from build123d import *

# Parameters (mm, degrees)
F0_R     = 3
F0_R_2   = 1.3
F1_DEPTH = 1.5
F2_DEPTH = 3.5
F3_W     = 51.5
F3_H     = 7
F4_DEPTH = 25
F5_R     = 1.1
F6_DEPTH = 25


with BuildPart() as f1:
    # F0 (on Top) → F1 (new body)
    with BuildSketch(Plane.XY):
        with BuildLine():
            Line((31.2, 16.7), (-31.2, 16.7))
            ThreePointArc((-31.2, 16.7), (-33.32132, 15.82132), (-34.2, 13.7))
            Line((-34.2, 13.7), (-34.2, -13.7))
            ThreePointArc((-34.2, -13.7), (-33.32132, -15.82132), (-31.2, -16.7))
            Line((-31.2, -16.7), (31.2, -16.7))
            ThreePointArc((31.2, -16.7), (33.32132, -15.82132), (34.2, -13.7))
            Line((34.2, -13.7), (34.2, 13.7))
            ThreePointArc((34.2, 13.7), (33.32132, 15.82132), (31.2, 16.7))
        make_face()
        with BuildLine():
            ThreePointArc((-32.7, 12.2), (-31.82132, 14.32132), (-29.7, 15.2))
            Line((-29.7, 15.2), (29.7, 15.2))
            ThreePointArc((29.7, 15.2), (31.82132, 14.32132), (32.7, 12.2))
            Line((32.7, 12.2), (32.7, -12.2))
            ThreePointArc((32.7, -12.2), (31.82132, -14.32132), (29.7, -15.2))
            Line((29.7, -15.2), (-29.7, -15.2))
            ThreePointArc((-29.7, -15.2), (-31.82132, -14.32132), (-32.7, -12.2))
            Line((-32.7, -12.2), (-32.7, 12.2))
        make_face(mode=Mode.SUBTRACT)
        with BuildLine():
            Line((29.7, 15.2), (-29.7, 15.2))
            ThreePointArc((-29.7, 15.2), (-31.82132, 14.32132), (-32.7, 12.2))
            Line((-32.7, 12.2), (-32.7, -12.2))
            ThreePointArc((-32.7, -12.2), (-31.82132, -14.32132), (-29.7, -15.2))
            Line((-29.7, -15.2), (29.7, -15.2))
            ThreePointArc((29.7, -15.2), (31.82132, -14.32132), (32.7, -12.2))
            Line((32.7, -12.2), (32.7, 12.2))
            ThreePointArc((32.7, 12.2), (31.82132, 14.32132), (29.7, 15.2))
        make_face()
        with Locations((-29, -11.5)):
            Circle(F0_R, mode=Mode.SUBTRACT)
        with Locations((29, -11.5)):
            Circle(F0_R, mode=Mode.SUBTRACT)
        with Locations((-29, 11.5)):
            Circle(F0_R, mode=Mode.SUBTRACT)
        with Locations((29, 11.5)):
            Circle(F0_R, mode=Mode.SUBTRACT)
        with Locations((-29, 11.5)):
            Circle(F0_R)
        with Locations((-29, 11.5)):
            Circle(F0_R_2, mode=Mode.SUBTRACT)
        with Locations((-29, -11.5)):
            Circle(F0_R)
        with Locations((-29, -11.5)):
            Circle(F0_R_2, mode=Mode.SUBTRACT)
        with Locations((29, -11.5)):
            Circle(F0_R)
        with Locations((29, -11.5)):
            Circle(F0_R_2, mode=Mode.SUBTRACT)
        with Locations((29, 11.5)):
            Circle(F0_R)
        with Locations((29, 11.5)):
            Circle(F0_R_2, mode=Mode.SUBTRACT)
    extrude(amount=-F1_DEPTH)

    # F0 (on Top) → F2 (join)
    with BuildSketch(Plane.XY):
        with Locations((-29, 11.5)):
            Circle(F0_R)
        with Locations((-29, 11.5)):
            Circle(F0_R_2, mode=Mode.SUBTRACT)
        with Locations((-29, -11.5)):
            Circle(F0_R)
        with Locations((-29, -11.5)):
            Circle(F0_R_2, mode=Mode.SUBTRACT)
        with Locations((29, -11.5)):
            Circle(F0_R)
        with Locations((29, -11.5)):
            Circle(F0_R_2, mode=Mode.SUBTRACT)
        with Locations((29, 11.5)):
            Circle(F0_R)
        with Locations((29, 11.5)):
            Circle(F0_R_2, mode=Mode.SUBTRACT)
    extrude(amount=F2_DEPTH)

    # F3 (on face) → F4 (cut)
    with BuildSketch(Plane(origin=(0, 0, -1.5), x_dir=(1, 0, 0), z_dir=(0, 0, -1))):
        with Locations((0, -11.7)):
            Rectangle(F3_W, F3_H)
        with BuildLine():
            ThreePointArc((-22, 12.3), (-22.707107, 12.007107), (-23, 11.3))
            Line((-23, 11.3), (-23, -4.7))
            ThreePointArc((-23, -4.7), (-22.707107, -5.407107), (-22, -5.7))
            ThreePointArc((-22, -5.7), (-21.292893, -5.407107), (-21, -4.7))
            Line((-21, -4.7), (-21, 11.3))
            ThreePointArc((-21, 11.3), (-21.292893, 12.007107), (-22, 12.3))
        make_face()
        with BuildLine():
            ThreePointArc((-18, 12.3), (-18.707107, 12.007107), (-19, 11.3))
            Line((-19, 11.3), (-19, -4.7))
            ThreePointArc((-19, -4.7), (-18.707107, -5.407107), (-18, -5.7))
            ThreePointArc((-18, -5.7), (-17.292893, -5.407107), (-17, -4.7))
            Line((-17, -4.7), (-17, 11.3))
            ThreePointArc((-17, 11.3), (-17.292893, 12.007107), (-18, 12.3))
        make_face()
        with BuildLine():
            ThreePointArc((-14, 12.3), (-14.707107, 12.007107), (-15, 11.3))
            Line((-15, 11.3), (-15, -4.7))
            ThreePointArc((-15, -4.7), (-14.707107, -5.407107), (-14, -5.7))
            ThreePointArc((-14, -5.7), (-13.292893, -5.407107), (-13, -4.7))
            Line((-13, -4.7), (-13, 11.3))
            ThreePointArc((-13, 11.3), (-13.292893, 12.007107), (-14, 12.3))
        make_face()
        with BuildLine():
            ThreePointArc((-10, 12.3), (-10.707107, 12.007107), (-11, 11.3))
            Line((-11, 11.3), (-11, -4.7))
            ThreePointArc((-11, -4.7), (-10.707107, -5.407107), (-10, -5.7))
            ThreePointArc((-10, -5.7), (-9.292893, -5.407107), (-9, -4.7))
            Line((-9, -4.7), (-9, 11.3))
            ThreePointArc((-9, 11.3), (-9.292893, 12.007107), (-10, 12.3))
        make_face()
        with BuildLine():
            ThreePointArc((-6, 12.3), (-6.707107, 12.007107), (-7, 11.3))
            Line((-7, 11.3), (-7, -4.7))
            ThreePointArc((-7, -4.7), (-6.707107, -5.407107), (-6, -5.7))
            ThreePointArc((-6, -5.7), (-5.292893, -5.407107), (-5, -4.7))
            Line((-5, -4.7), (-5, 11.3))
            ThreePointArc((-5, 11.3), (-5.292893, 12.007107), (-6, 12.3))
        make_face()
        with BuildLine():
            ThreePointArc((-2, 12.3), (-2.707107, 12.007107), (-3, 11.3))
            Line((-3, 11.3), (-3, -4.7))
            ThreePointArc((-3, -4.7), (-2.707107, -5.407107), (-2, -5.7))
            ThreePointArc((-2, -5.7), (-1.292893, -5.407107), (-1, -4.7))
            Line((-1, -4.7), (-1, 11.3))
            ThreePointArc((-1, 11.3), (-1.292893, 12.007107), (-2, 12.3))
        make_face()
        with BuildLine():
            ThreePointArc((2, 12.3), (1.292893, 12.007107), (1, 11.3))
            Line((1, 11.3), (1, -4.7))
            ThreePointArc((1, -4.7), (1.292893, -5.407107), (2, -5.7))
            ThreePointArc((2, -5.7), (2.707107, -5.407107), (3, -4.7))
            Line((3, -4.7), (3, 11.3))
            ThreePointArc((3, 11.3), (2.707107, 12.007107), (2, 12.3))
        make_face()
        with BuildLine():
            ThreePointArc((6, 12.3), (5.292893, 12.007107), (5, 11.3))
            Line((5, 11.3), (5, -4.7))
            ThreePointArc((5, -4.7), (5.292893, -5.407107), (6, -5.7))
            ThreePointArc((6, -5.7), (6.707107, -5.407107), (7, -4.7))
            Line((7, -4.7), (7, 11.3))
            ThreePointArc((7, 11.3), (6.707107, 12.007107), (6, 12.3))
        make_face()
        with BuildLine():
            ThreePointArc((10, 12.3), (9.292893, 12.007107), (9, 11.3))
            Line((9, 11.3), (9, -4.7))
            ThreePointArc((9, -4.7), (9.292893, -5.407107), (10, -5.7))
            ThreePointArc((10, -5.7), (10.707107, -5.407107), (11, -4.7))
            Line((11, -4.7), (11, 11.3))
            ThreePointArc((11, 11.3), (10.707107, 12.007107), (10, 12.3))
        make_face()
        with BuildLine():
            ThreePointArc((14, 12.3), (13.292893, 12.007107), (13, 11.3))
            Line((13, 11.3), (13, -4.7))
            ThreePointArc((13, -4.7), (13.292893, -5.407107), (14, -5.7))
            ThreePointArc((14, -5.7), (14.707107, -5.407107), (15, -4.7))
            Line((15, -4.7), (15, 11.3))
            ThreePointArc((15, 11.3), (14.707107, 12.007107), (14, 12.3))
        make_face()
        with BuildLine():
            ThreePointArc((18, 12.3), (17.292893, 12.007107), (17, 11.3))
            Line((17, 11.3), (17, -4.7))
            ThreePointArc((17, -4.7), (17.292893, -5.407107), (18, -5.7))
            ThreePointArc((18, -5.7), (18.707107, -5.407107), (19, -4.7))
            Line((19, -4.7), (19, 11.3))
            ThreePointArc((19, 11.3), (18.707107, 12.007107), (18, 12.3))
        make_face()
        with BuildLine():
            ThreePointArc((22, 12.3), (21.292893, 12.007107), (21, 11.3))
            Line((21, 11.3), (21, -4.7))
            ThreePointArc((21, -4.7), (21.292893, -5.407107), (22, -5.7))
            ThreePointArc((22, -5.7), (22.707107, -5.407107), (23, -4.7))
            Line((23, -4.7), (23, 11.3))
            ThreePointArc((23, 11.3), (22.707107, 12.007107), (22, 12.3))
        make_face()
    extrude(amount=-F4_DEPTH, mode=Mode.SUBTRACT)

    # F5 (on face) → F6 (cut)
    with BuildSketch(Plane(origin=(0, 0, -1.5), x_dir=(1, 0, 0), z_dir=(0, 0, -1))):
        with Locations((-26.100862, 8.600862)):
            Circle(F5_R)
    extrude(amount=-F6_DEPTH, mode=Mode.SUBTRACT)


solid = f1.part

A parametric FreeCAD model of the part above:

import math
import FreeCAD as App
import Part
import Sketcher

doc = App.newDocument("Part")
body = doc.addObject("PartDesign::Body", "Body")

# Sketch on XY plane
sketch1 = body.newObject("Sketcher::SketchObject", "Sketch")
sketch1.AttachmentSupport = (doc.getObject("XY_Plane"), [""])
sketch1.MapMode = "FlatFace"
sketch1.addGeometry([
    Part.LineSegment(App.Vector(31.2, 16.7, 0), App.Vector(-31.2, 16.7, 0)),  # 0
    Part.ArcOfCircle(Part.Circle(App.Vector(-31.199999, 13.699999, 0), App.Vector(0, 0, 1), 3.000001), math.radians(90.000022), math.radians(179.999978)),  # 1
    Part.LineSegment(App.Vector(-34.2, 13.7, 0), App.Vector(-34.2, -13.7, 0)),  # 2
    Part.ArcOfCircle(Part.Circle(App.Vector(-31.199999, -13.699999, 0), App.Vector(0, 0, 1), 3.000001), math.radians(-179.999978), math.radians(-90.000022)),  # 3
    Part.LineSegment(App.Vector(-31.2, -16.7, 0), App.Vector(31.2, -16.7, 0)),  # 4
    Part.ArcOfCircle(Part.Circle(App.Vector(31.199999, -13.699999, 0), App.Vector(0, 0, 1), 3.000001), math.radians(-89.999978), math.radians(-0.000022)),  # 5
    Part.LineSegment(App.Vector(34.2, -13.7, 0), App.Vector(34.2, 13.7, 0)),  # 6
    Part.ArcOfCircle(Part.Circle(App.Vector(31.199999, 13.699999, 0), App.Vector(0, 0, 1), 3.000001), math.radians(0.000022), math.radians(89.999978)),  # 7
    Part.Circle(App.Vector(-29, -11.5, 0), App.Vector(0, 0, 1), 1.3),  # 8
    Part.Circle(App.Vector(29, -11.5, 0), App.Vector(0, 0, 1), 1.3),  # 9
    Part.Circle(App.Vector(-29, 11.5, 0), App.Vector(0, 0, 1), 1.3),  # 10
    Part.Circle(App.Vector(29, 11.5, 0), App.Vector(0, 0, 1), 1.3),  # 11
], False)
sketch1.addConstraint([
    Sketcher.Constraint("Tangent", 0, 2, 1, 1),
    Sketcher.Constraint("Tangent", 1, 2, 2, 1),
    Sketcher.Constraint("Tangent", 2, 2, 3, 1),
    Sketcher.Constraint("Tangent", 3, 2, 4, 1),
    Sketcher.Constraint("Tangent", 4, 2, 5, 1),
    Sketcher.Constraint("Tangent", 5, 2, 6, 1),
    Sketcher.Constraint("Tangent", 6, 2, 7, 1),
    Sketcher.Constraint("Tangent", 7, 2, 0, 1),
    Sketcher.Constraint("Horizontal", 0),
    Sketcher.Constraint("Vertical", 2),
    Sketcher.Constraint("Horizontal", 4),
    Sketcher.Constraint("Vertical", 6),
    Sketcher.Constraint("Equal", 1, 3),
    Sketcher.Constraint("Equal", 3, 5),
    Sketcher.Constraint("Equal", 5, 7),
    Sketcher.Constraint("Equal", 8, 9),
    Sketcher.Constraint("Equal", 9, 10),
    Sketcher.Constraint("Equal", 10, 11),
    Sketcher.Constraint("Symmetric", 1, 3, 5, 3, -1, 1),
    Sketcher.Constraint("Symmetric", 9, 3, 10, 3, -1, 1),
    Sketcher.Constraint("Symmetric", 8, 3, 11, 3, -1, 1),
    Sketcher.Constraint("Symmetric", 8, 3, 9, 3, -2),
    Sketcher.Constraint("Radius", 1, 3.000001),
    Sketcher.Constraint("Diameter", 8, 2.6),
    Sketcher.Constraint("DistanceX", 0, 2, 0, 1, 62.4),
    Sketcher.Constraint("DistanceY", 2, 2, 2, 1, 27.4),
    Sketcher.Constraint("DistanceX", 8, 3, -1, 1, 29.0),
    Sketcher.Constraint("DistanceY", 8, 3, 10, 3, 23.0),
])
pad1 = body.newObject("PartDesign::Pad", "Pad")
pad1.Profile = sketch1
pad1.Length = 1.5
pad1.Reversed = True

# Sketch on XY plane
sketch2 = body.newObject("Sketcher::SketchObject", "Sketch001")
sketch2.AttachmentSupport = (doc.getObject("XY_Plane"), [""])
sketch2.MapMode = "FlatFace"
sketch2.addGeometry([
    Part.Circle(App.Vector(-29, 11.5, 0), App.Vector(0, 0, 1), 3),  # 0
    Part.Circle(App.Vector(-29, 11.5, 0), App.Vector(0, 0, 1), 1.3),  # 1
    Part.Circle(App.Vector(-29, -11.5, 0), App.Vector(0, 0, 1), 3),  # 2
    Part.Circle(App.Vector(-29, -11.5, 0), App.Vector(0, 0, 1), 1.3),  # 3
    Part.Circle(App.Vector(29, -11.5, 0), App.Vector(0, 0, 1), 3),  # 4
    Part.Circle(App.Vector(29, -11.5, 0), App.Vector(0, 0, 1), 1.3),  # 5
    Part.Circle(App.Vector(29, 11.5, 0), App.Vector(0, 0, 1), 3),  # 6
    Part.Circle(App.Vector(29, 11.5, 0), App.Vector(0, 0, 1), 1.3),  # 7
], False)
sketch2.addConstraint([
    Sketcher.Constraint("Coincident", 1, 3, 0, 3),
    Sketcher.Constraint("Coincident", 3, 3, 2, 3),
    Sketcher.Constraint("Coincident", 5, 3, 4, 3),
    Sketcher.Constraint("Coincident", 7, 3, 6, 3),
    Sketcher.Constraint("Equal", 0, 2),
    Sketcher.Constraint("Equal", 1, 3),
    Sketcher.Constraint("Equal", 2, 4),
    Sketcher.Constraint("Equal", 3, 5),
    Sketcher.Constraint("Equal", 4, 6),
    Sketcher.Constraint("Equal", 5, 7),
    Sketcher.Constraint("Symmetric", 0, 3, 4, 3, -1, 1),
    Sketcher.Constraint("Symmetric", 2, 3, 6, 3, -1, 1),
    Sketcher.Constraint("Symmetric", 2, 3, 4, 3, -2),
    Sketcher.Constraint("Diameter", 0, 6.0),
    Sketcher.Constraint("Diameter", 1, 2.6),
    Sketcher.Constraint("DistanceX", 0, 3, -1, 1, 29.0),
    Sketcher.Constraint("DistanceY", 2, 3, 0, 3, 23.0),
])
pad2 = body.newObject("PartDesign::Pad", "Pad001")
pad2.Profile = sketch2
pad2.Length = 3.5

# Sketch on XY plane
sketch3 = body.newObject("Sketcher::SketchObject", "Sketch002")
sketch3.AttachmentSupport = (doc.getObject("XY_Plane"), [""])
sketch3.MapMode = "FlatFace"
sketch3.AttachmentOffset = App.Placement(App.Vector(0, 0, -1.5), App.Rotation())
sketch3.addGeometry([
    Part.LineSegment(App.Vector(-25.75, 8.2, 0), App.Vector(-25.75, 15.2, 0)),  # 0
    Part.LineSegment(App.Vector(-25.75, 15.2, 0), App.Vector(25.75, 15.2, 0)),  # 1
    Part.LineSegment(App.Vector(25.75, 15.2, 0), App.Vector(25.75, 8.2, 0)),  # 2
    Part.LineSegment(App.Vector(25.75, 8.2, 0), App.Vector(-25.75, 8.2, 0)),  # 3
    Part.ArcOfCircle(Part.Circle(App.Vector(-22.000001, -11.300001, 0), App.Vector(0, 0, 1), 0.999999), math.radians(179.999957), math.radians(270.000043)),  # 4
    Part.LineSegment(App.Vector(-23, -11.3, 0), App.Vector(-23, 4.7, 0)),  # 5
    Part.ArcOfCircle(Part.Circle(App.Vector(-22.000001, 4.700001, 0), App.Vector(0, 0, 1), 0.999999), math.radians(89.999957), math.radians(180.000043)),  # 6
    Part.ArcOfCircle(Part.Circle(App.Vector(-21.999999, 4.700001, 0), App.Vector(0, 0, 1), 0.999999), math.radians(-0.000043), math.radians(90.000043)),  # 7
    Part.LineSegment(App.Vector(-21, 4.7, 0), App.Vector(-21, -11.3, 0)),  # 8
    Part.ArcOfCircle(Part.Circle(App.Vector(-21.999999, -11.300001, 0), App.Vector(0, 0, 1), 0.999999), math.radians(-90.000043), math.radians(0.000043)),  # 9
    Part.ArcOfCircle(Part.Circle(App.Vector(-18.000001, -11.300001, 0), App.Vector(0, 0, 1), 0.999999), math.radians(179.999957), math.radians(270.000043)),  # 10
    Part.LineSegment(App.Vector(-19, -11.3, 0), App.Vector(-19, 4.7, 0)),  # 11
    Part.ArcOfCircle(Part.Circle(App.Vector(-18.000001, 4.700001, 0), App.Vector(0, 0, 1), 0.999999), math.radians(89.999957), math.radians(180.000043)),  # 12
    Part.ArcOfCircle(Part.Circle(App.Vector(-17.999999, 4.700001, 0), App.Vector(0, 0, 1), 0.999999), math.radians(-0.000043), math.radians(90.000043)),  # 13
    Part.LineSegment(App.Vector(-17, 4.7, 0), App.Vector(-17, -11.3, 0)),  # 14
    Part.ArcOfCircle(Part.Circle(App.Vector(-17.999999, -11.300001, 0), App.Vector(0, 0, 1), 0.999999), math.radians(-90.000043), math.radians(0.000043)),  # 15
    Part.ArcOfCircle(Part.Circle(App.Vector(-14.000001, -11.300001, 0), App.Vector(0, 0, 1), 0.999999), math.radians(179.999957), math.radians(270.000043)),  # 16
    Part.LineSegment(App.Vector(-15, -11.3, 0), App.Vector(-15, 4.7, 0)),  # 17
    Part.ArcOfCircle(Part.Circle(App.Vector(-14.000001, 4.700001, 0), App.Vector(0, 0, 1), 0.999999), math.radians(89.999957), math.radians(180.000043)),  # 18
    Part.ArcOfCircle(Part.Circle(App.Vector(-13.999999, 4.700001, 0), App.Vector(0, 0, 1), 0.999999), math.radians(-0.000043), math.radians(90.000043)),  # 19
    Part.LineSegment(App.Vector(-13, 4.7, 0), App.Vector(-13, -11.3, 0)),  # 20
    Part.ArcOfCircle(Part.Circle(App.Vector(-13.999999, -11.300001, 0), App.Vector(0, 0, 1), 0.999999), math.radians(-90.000043), math.radians(0.000043)),  # 21
    Part.ArcOfCircle(Part.Circle(App.Vector(-10.000001, -11.300001, 0), App.Vector(0, 0, 1), 0.999999), math.radians(179.999957), math.radians(270.000043)),  # 22
    Part.LineSegment(App.Vector(-11, -11.3, 0), App.Vector(-11, 4.7, 0)),  # 23
    Part.ArcOfCircle(Part.Circle(App.Vector(-10.000001, 4.700001, 0), App.Vector(0, 0, 1), 0.999999), math.radians(89.999957), math.radians(180.000043)),  # 24
    Part.ArcOfCircle(Part.Circle(App.Vector(-9.999999, 4.700001, 0), App.Vector(0, 0, 1), 0.999999), math.radians(-0.000043), math.radians(90.000043)),  # 25
    Part.LineSegment(App.Vector(-9, 4.7, 0), App.Vector(-9, -11.3, 0)),  # 26
    Part.ArcOfCircle(Part.Circle(App.Vector(-9.999999, -11.300001, 0), App.Vector(0, 0, 1), 0.999999), math.radians(-90.000043), math.radians(0.000043)),  # 27
    Part.ArcOfCircle(Part.Circle(App.Vector(-6.000001, -11.300001, 0), App.Vector(0, 0, 1), 0.999999), math.radians(179.999957), math.radians(270.000043)),  # 28
    Part.LineSegment(App.Vector(-7, -11.3, 0), App.Vector(-7, 4.7, 0)),  # 29
    Part.ArcOfCircle(Part.Circle(App.Vector(-6.000001, 4.700001, 0), App.Vector(0, 0, 1), 0.999999), math.radians(89.999957), math.radians(180.000043)),  # 30
    Part.ArcOfCircle(Part.Circle(App.Vector(-5.999999, 4.700001, 0), App.Vector(0, 0, 1), 0.999999), math.radians(-0.000043), math.radians(90.000043)),  # 31
    Part.LineSegment(App.Vector(-5, 4.7, 0), App.Vector(-5, -11.3, 0)),  # 32
    Part.ArcOfCircle(Part.Circle(App.Vector(-5.999999, -11.300001, 0), App.Vector(0, 0, 1), 0.999999), math.radians(-90.000043), math.radians(0.000043)),  # 33
    Part.ArcOfCircle(Part.Circle(App.Vector(-2.000001, -11.300001, 0), App.Vector(0, 0, 1), 0.999999), math.radians(179.999957), math.radians(270.000043)),  # 34
    Part.LineSegment(App.Vector(-3, -11.3, 0), App.Vector(-3, 4.7, 0)),  # 35
    Part.ArcOfCircle(Part.Circle(App.Vector(-2.000001, 4.700001, 0), App.Vector(0, 0, 1), 0.999999), math.radians(89.999957), math.radians(180.000043)),  # 36
    Part.ArcOfCircle(Part.Circle(App.Vector(-1.999999, 4.700001, 0), App.Vector(0, 0, 1), 0.999999), math.radians(-0.000043), math.radians(90.000043)),  # 37
    Part.LineSegment(App.Vector(-1, 4.7, 0), App.Vector(-1, -11.3, 0)),  # 38
    Part.ArcOfCircle(Part.Circle(App.Vector(-1.999999, -11.300001, 0), App.Vector(0, 0, 1), 0.999999), math.radians(-90.000043), math.radians(0.000043)),  # 39
    Part.ArcOfCircle(Part.Circle(App.Vector(1.999999, -11.300001, 0), App.Vector(0, 0, 1), 0.999999), math.radians(179.999957), math.radians(270.000043)),  # 40
    Part.LineSegment(App.Vector(1, -11.3, 0), App.Vector(1, 4.7, 0)),  # 41
    Part.ArcOfCircle(Part.Circle(App.Vector(1.999999, 4.700001, 0), App.Vector(0, 0, 1), 0.999999), math.radians(89.999957), math.radians(180.000043)),  # 42
    Part.ArcOfCircle(Part.Circle(App.Vector(2.000001, 4.700001, 0), App.Vector(0, 0, 1), 0.999999), math.radians(-0.000043), math.radians(90.000043)),  # 43
    Part.LineSegment(App.Vector(3, 4.7, 0), App.Vector(3, -11.3, 0)),  # 44
    Part.ArcOfCircle(Part.Circle(App.Vector(2.000001, -11.300001, 0), App.Vector(0, 0, 1), 0.999999), math.radians(-90.000043), math.radians(0.000043)),  # 45
    Part.ArcOfCircle(Part.Circle(App.Vector(5.999999, -11.300001, 0), App.Vector(0, 0, 1), 0.999999), math.radians(179.999957), math.radians(270.000043)),  # 46
    Part.LineSegment(App.Vector(5, -11.3, 0), App.Vector(5, 4.7, 0)),  # 47
    Part.ArcOfCircle(Part.Circle(App.Vector(5.999999, 4.700001, 0), App.Vector(0, 0, 1), 0.999999), math.radians(89.999957), math.radians(180.000043)),  # 48
    Part.ArcOfCircle(Part.Circle(App.Vector(6.000001, 4.700001, 0), App.Vector(0, 0, 1), 0.999999), math.radians(-0.000043), math.radians(90.000043)),  # 49
    Part.LineSegment(App.Vector(7, 4.7, 0), App.Vector(7, -11.3, 0)),  # 50
    Part.ArcOfCircle(Part.Circle(App.Vector(6.000001, -11.300001, 0), App.Vector(0, 0, 1), 0.999999), math.radians(-90.000043), math.radians(0.000043)),  # 51
    Part.ArcOfCircle(Part.Circle(App.Vector(9.999999, -11.300001, 0), App.Vector(0, 0, 1), 0.999999), math.radians(179.999957), math.radians(270.000043)),  # 52
    Part.LineSegment(App.Vector(9, -11.3, 0), App.Vector(9, 4.7, 0)),  # 53
    Part.ArcOfCircle(Part.Circle(App.Vector(9.999999, 4.700001, 0), App.Vector(0, 0, 1), 0.999999), math.radians(89.999957), math.radians(180.000043)),  # 54
    Part.ArcOfCircle(Part.Circle(App.Vector(10.000001, 4.700001, 0), App.Vector(0, 0, 1), 0.999999), math.radians(-0.000043), math.radians(90.000043)),  # 55
    Part.LineSegment(App.Vector(11, 4.7, 0), App.Vector(11, -11.3, 0)),  # 56
    Part.ArcOfCircle(Part.Circle(App.Vector(10.000001, -11.300001, 0), App.Vector(0, 0, 1), 0.999999), math.radians(-90.000043), math.radians(0.000043)),  # 57
    Part.ArcOfCircle(Part.Circle(App.Vector(13.999999, -11.300001, 0), App.Vector(0, 0, 1), 0.999999), math.radians(179.999957), math.radians(270.000043)),  # 58
    Part.LineSegment(App.Vector(13, -11.3, 0), App.Vector(13, 4.7, 0)),  # 59
    Part.ArcOfCircle(Part.Circle(App.Vector(13.999999, 4.700001, 0), App.Vector(0, 0, 1), 0.999999), math.radians(89.999957), math.radians(180.000043)),  # 60
    Part.ArcOfCircle(Part.Circle(App.Vector(14.000001, 4.700001, 0), App.Vector(0, 0, 1), 0.999999), math.radians(-0.000043), math.radians(90.000043)),  # 61
    Part.LineSegment(App.Vector(15, 4.7, 0), App.Vector(15, -11.3, 0)),  # 62
    Part.ArcOfCircle(Part.Circle(App.Vector(14.000001, -11.300001, 0), App.Vector(0, 0, 1), 0.999999), math.radians(-90.000043), math.radians(0.000043)),  # 63
    Part.ArcOfCircle(Part.Circle(App.Vector(17.999999, -11.300001, 0), App.Vector(0, 0, 1), 0.999999), math.radians(179.999957), math.radians(270.000043)),  # 64
    Part.LineSegment(App.Vector(17, -11.3, 0), App.Vector(17, 4.7, 0)),  # 65
    Part.ArcOfCircle(Part.Circle(App.Vector(17.999999, 4.700001, 0), App.Vector(0, 0, 1), 0.999999), math.radians(89.999957), math.radians(180.000043)),  # 66
    Part.ArcOfCircle(Part.Circle(App.Vector(18.000001, 4.700001, 0), App.Vector(0, 0, 1), 0.999999), math.radians(-0.000043), math.radians(90.000043)),  # 67
    Part.LineSegment(App.Vector(19, 4.7, 0), App.Vector(19, -11.3, 0)),  # 68
    Part.ArcOfCircle(Part.Circle(App.Vector(18.000001, -11.300001, 0), App.Vector(0, 0, 1), 0.999999), math.radians(-90.000043), math.radians(0.000043)),  # 69
    Part.ArcOfCircle(Part.Circle(App.Vector(21.999999, -11.300001, 0), App.Vector(0, 0, 1), 0.999999), math.radians(179.999957), math.radians(270.000043)),  # 70
    Part.LineSegment(App.Vector(21, -11.3, 0), App.Vector(21, 4.7, 0)),  # 71
    Part.ArcOfCircle(Part.Circle(App.Vector(21.999999, 4.700001, 0), App.Vector(0, 0, 1), 0.999999), math.radians(89.999957), math.radians(180.000043)),  # 72
    Part.ArcOfCircle(Part.Circle(App.Vector(22.000001, 4.700001, 0), App.Vector(0, 0, 1), 0.999999), math.radians(-0.000043), math.radians(90.000043)),  # 73
    Part.LineSegment(App.Vector(23, 4.7, 0), App.Vector(23, -11.3, 0)),  # 74
    Part.ArcOfCircle(Part.Circle(App.Vector(22.000001, -11.300001, 0), App.Vector(0, 0, 1), 0.999999), math.radians(-90.000043), math.radians(0.000043)),  # 75
], False)
sketch3.addConstraint([
    Sketcher.Constraint("Coincident", 0, 2, 1, 1),
    Sketcher.Constraint("Coincident", 1, 2, 2, 1),
    Sketcher.Constraint("Coincident", 2, 2, 3, 1),
    Sketcher.Constraint("Coincident", 3, 2, 0, 1),
    Sketcher.Constraint("Tangent", 4, 1, 5, 1),
    Sketcher.Constraint("Tangent", 5, 2, 6, 2),
    Sketcher.Constraint("Tangent", 6, 1, 7, 2),
    Sketcher.Constraint("Tangent", 7, 1, 8, 1),
    Sketcher.Constraint("Tangent", 8, 2, 9, 2),
    Sketcher.Constraint("Tangent", 9, 1, 4, 2),
    Sketcher.Constraint("Tangent", 10, 1, 11, 1),
    Sketcher.Constraint("Tangent", 11, 2, 12, 2),
    Sketcher.Constraint("Tangent", 12, 1, 13, 2),
    Sketcher.Constraint("Tangent", 13, 1, 14, 1),
    Sketcher.Constraint("Tangent", 14, 2, 15, 2),
    Sketcher.Constraint("Tangent", 15, 1, 10, 2),
    Sketcher.Constraint("Tangent", 16, 1, 17, 1),
    Sketcher.Constraint("Tangent", 17, 2, 18, 2),
    Sketcher.Constraint("Tangent", 18, 1, 19, 2),
    Sketcher.Constraint("Tangent", 19, 1, 20, 1),
    Sketcher.Constraint("Tangent", 20, 2, 21, 2),
    Sketcher.Constraint("Tangent", 21, 1, 16, 2),
    Sketcher.Constraint("Tangent", 22, 1, 23, 1),
    Sketcher.Constraint("Tangent", 23, 2, 24, 2),
    Sketcher.Constraint("Tangent", 24, 1, 25, 2),
    Sketcher.Constraint("Tangent", 25, 1, 26, 1),
    Sketcher.Constraint("Tangent", 26, 2, 27, 2),
    Sketcher.Constraint("Tangent", 27, 1, 22, 2),
    Sketcher.Constraint("Tangent", 28, 1, 29, 1),
    Sketcher.Constraint("Tangent", 29, 2, 30, 2),
    Sketcher.Constraint("Tangent", 30, 1, 31, 2),
    Sketcher.Constraint("Tangent", 31, 1, 32, 1),
    Sketcher.Constraint("Tangent", 32, 2, 33, 2),
    Sketcher.Constraint("Tangent", 33, 1, 28, 2),
    Sketcher.Constraint("Tangent", 34, 1, 35, 1),
    Sketcher.Constraint("Tangent", 35, 2, 36, 2),
    Sketcher.Constraint("Tangent", 36, 1, 37, 2),
    Sketcher.Constraint("Tangent", 37, 1, 38, 1),
    Sketcher.Constraint("Tangent", 38, 2, 39, 2),
    Sketcher.Constraint("Tangent", 39, 1, 34, 2),
    Sketcher.Constraint("Tangent", 40, 1, 41, 1),
    Sketcher.Constraint("Tangent", 41, 2, 42, 2),
    Sketcher.Constraint("Tangent", 42, 1, 43, 2),
    Sketcher.Constraint("Tangent", 43, 1, 44, 1),
    Sketcher.Constraint("Tangent", 44, 2, 45, 2),
    Sketcher.Constraint("Tangent", 45, 1, 40, 2),
    Sketcher.Constraint("Tangent", 46, 1, 47, 1),
    Sketcher.Constraint("Tangent", 47, 2, 48, 2),
    Sketcher.Constraint("Tangent", 48, 1, 49, 2),
    Sketcher.Constraint("Tangent", 49, 1, 50, 1),
    Sketcher.Constraint("Tangent", 50, 2, 51, 2),
    Sketcher.Constraint("Tangent", 51, 1, 46, 2),
    Sketcher.Constraint("Tangent", 52, 1, 53, 1),
    Sketcher.Constraint("Tangent", 53, 2, 54, 2),
    Sketcher.Constraint("Tangent", 54, 1, 55, 2),
    Sketcher.Constraint("Tangent", 55, 1, 56, 1),
    Sketcher.Constraint("Tangent", 56, 2, 57, 2),
    Sketcher.Constraint("Tangent", 57, 1, 52, 2),
    Sketcher.Constraint("Tangent", 58, 1, 59, 1),
    Sketcher.Constraint("Tangent", 59, 2, 60, 2),
    Sketcher.Constraint("Tangent", 60, 1, 61, 2),
    Sketcher.Constraint("Tangent", 61, 1, 62, 1),
    Sketcher.Constraint("Tangent", 62, 2, 63, 2),
    Sketcher.Constraint("Tangent", 63, 1, 58, 2),
    Sketcher.Constraint("Tangent", 64, 1, 65, 1),
    Sketcher.Constraint("Tangent", 65, 2, 66, 2),
    Sketcher.Constraint("Tangent", 66, 1, 67, 2),
    Sketcher.Constraint("Tangent", 67, 1, 68, 1),
    Sketcher.Constraint("Tangent", 68, 2, 69, 2),
    Sketcher.Constraint("Tangent", 69, 1, 64, 2),
    Sketcher.Constraint("Tangent", 70, 1, 71, 1),
    Sketcher.Constraint("Tangent", 71, 2, 72, 2),
    Sketcher.Constraint("Tangent", 72, 1, 73, 2),
    Sketcher.Constraint("Tangent", 73, 1, 74, 1),
    Sketcher.Constraint("Tangent", 74, 2, 75, 2),
    Sketcher.Constraint("Tangent", 75, 1, 70, 2),
    Sketcher.Constraint("Vertical", 0),
    Sketcher.Constraint("Horizontal", 1),
    Sketcher.Constraint("Vertical", 2),
    Sketcher.Constraint("Horizontal", 3),
    Sketcher.Constraint("Vertical", 5),
    Sketcher.Constraint("Vertical", 8),
    Sketcher.Constraint("Vertical", 11),
    Sketcher.Constraint("Vertical", 14),
    Sketcher.Constraint("Vertical", 17),
    Sketcher.Constraint("Vertical", 20),
    Sketcher.Constraint("Vertical", 23),
    Sketcher.Constraint("Vertical", 26),
    Sketcher.Constraint("Vertical", 29),
    Sketcher.Constraint("Vertical", 32),
    Sketcher.Constraint("Vertical", 35),
    Sketcher.Constraint("Vertical", 38),
    Sketcher.Constraint("Vertical", 41),
    Sketcher.Constraint("Vertical", 44),
    Sketcher.Constraint("Vertical", 47),
    Sketcher.Constraint("Vertical", 50),
    Sketcher.Constraint("Vertical", 53),
    Sketcher.Constraint("Vertical", 56),
    Sketcher.Constraint("Vertical", 59),
    Sketcher.Constraint("Vertical", 62),
    Sketcher.Constraint("Vertical", 65),
    Sketcher.Constraint("Vertical", 68),
    Sketcher.Constraint("Vertical", 71),
    Sketcher.Constraint("Vertical", 74),
    Sketcher.Constraint("Equal", 4, 6),
    Sketcher.Constraint("Equal", 6, 7),
    Sketcher.Constraint("Equal", 9, 10),
    Sketcher.Constraint("Equal", 10, 12),
    Sketcher.Constraint("Equal", 12, 13),
    Sketcher.Constraint("Equal", 15, 16),
    Sketcher.Constraint("Equal", 16, 18),
    Sketcher.Constraint("Equal", 18, 19),
    Sketcher.Constraint("Equal", 21, 22),
    Sketcher.Constraint("Equal", 22, 24),
    Sketcher.Constraint("Equal", 24, 25),
    Sketcher.Constraint("Equal", 27, 28),
    Sketcher.Constraint("Equal", 28, 30),
    Sketcher.Constraint("Equal", 30, 31),
    Sketcher.Constraint("Equal", 33, 34),
    Sketcher.Constraint("Equal", 34, 36),
    Sketcher.Constraint("Equal", 36, 37),
    Sketcher.Constraint("Equal", 39, 40),
    Sketcher.Constraint("Equal", 40, 42),
    Sketcher.Constraint("Equal", 42, 43),
    Sketcher.Constraint("Equal", 45, 46),
    Sketcher.Constraint("Equal", 46, 48),
    Sketcher.Constraint("Equal", 48, 49),
    Sketcher.Constraint("Equal", 51, 52),
    Sketcher.Constraint("Equal", 52, 54),
    Sketcher.Constraint("Equal", 54, 55),
    Sketcher.Constraint("Equal", 57, 58),
    Sketcher.Constraint("Equal", 58, 60),
    Sketcher.Constraint("Equal", 60, 61),
    Sketcher.Constraint("Equal", 63, 64),
    Sketcher.Constraint("Equal", 64, 66),
    Sketcher.Constraint("Equal", 66, 67),
    Sketcher.Constraint("Equal", 69, 70),
    Sketcher.Constraint("Equal", 70, 72),
    Sketcher.Constraint("Equal", 72, 73),
    Sketcher.Constraint("Symmetric", 34, 3, 40, 3, -2),
    Sketcher.Constraint("Symmetric", 28, 3, 46, 3, -2),
    Sketcher.Constraint("Symmetric", 22, 3, 52, 3, -2),
    Sketcher.Constraint("Symmetric", 16, 3, 58, 3, -2),
    Sketcher.Constraint("Symmetric", 10, 3, 64, 3, -2),
    Sketcher.Constraint("Symmetric", 4, 3, 70, 3, -2),
    Sketcher.Constraint("Symmetric", 36, 1, 42, 1, -2),
    Sketcher.Constraint("Symmetric", 30, 1, 48, 1, -2),
    Sketcher.Constraint("Symmetric", 24, 1, 54, 1, -2),
    Sketcher.Constraint("Symmetric", 18, 1, 60, 1, -2),
    Sketcher.Constraint("Symmetric", 12, 1, 66, 1, -2),
    Sketcher.Constraint("Symmetric", 6, 1, 72, 1, -2),
    Sketcher.Constraint("Horizontal", 9, 3, 10, 3),
    Sketcher.Constraint("Horizontal", 7, 3, 12, 3),
    Sketcher.Constraint("Horizontal", 15, 3, 16, 3),
    Sketcher.Constraint("Horizontal", 13, 3, 18, 3),
    Sketcher.Constraint("Horizontal", 21, 3, 22, 3),
    Sketcher.Constraint("Horizontal", 19, 3, 24, 3),
    Sketcher.Constraint("Horizontal", 27, 3, 28, 3),
    Sketcher.Constraint("Horizontal", 25, 3, 30, 3),
    Sketcher.Constraint("Horizontal", 33, 3, 34, 3),
    Sketcher.Constraint("Horizontal", 31, 3, 36, 3),
    Sketcher.Constraint("Vertical", 9, 3, 6, 1),
    Sketcher.Constraint("Vertical", 6, 1, 9, 1),
    Sketcher.Constraint("Vertical", 15, 3, 12, 1),
    Sketcher.Constraint("Vertical", 12, 1, 15, 1),
    Sketcher.Constraint("Vertical", 21, 3, 18, 1),
    Sketcher.Constraint("Vertical", 18, 1, 21, 1),
    Sketcher.Constraint("Vertical", 27, 3, 24, 1),
    Sketcher.Constraint("Vertical", 24, 1, 27, 1),
    Sketcher.Constraint("Vertical", 33, 3, 30, 1),
    Sketcher.Constraint("Vertical", 30, 1, 33, 1),
    Sketcher.Constraint("Vertical", 39, 3, 36, 1),
    Sketcher.Constraint("Vertical", 36, 1, 39, 1),
    Sketcher.Constraint("Vertical", 42, 1, 45, 1),
    Sketcher.Constraint("Vertical", 48, 1, 51, 1),
    Sketcher.Constraint("Vertical", 54, 1, 57, 1),
    Sketcher.Constraint("Vertical", 60, 1, 63, 1),
    Sketcher.Constraint("Vertical", 66, 1, 69, 1),
    Sketcher.Constraint("Vertical", 72, 1, 75, 1),
    Sketcher.Constraint("Radius", 4, 0.999999),
    Sketcher.Constraint("DistanceY", 0, 1, 0, 2, 7.0),
    Sketcher.Constraint("DistanceY", 5, 1, 5, 2, 16.0),
    Sketcher.Constraint("DistanceX", 1, 1, 1, 2, 51.5),
    Sketcher.Constraint("DistanceX", 4, 3, -1, 1, 22.000001),
    Sketcher.Constraint("DistanceX", 10, 3, -1, 1, 18.000001),
    Sketcher.Constraint("DistanceX", 16, 3, -1, 1, 14.000001),
    Sketcher.Constraint("DistanceX", 22, 3, -1, 1, 10.000001),
    Sketcher.Constraint("DistanceX", 28, 3, -1, 1, 6.000001),
    Sketcher.Constraint("DistanceX", 34, 3, -1, 1, 2.000001),
    Sketcher.Constraint("DistanceY", 4, 3, -1, 1, 11.300001),
    Sketcher.Constraint("DistanceY", -1, 1, 0, 2, 15.2),
    Sketcher.Constraint("DistanceX", 0, 2, -1, 1, 25.75),
])
pocket1 = body.newObject("PartDesign::Pocket", "Pocket")
pocket1.Profile = sketch3
pocket1.Length = 25
pocket1.Reversed = True

# Sketch on XY plane
sketch4 = body.newObject("Sketcher::SketchObject", "Sketch003")
sketch4.AttachmentSupport = (doc.getObject("XY_Plane"), [""])
sketch4.MapMode = "FlatFace"
sketch4.AttachmentOffset = App.Placement(App.Vector(0, 0, -1.5), App.Rotation())
sketch4.addGeometry(Part.Circle(App.Vector(-26.100862, -8.600862, 0), App.Vector(0, 0, 1), 1.1), False)
sketch4.addConstraint([
    Sketcher.Constraint("Diameter", 0, 2.2),
    Sketcher.Constraint("DistanceX", 0, 3, -1, 1, 26.100862),
    Sketcher.Constraint("DistanceY", 0, 3, -1, 1, 8.600862),
])
pocket2 = body.newObject("PartDesign::Pocket", "Pocket001")
pocket2.Profile = sketch4
pocket2.Length = 25
pocket2.Reversed = True

doc.recompute()
